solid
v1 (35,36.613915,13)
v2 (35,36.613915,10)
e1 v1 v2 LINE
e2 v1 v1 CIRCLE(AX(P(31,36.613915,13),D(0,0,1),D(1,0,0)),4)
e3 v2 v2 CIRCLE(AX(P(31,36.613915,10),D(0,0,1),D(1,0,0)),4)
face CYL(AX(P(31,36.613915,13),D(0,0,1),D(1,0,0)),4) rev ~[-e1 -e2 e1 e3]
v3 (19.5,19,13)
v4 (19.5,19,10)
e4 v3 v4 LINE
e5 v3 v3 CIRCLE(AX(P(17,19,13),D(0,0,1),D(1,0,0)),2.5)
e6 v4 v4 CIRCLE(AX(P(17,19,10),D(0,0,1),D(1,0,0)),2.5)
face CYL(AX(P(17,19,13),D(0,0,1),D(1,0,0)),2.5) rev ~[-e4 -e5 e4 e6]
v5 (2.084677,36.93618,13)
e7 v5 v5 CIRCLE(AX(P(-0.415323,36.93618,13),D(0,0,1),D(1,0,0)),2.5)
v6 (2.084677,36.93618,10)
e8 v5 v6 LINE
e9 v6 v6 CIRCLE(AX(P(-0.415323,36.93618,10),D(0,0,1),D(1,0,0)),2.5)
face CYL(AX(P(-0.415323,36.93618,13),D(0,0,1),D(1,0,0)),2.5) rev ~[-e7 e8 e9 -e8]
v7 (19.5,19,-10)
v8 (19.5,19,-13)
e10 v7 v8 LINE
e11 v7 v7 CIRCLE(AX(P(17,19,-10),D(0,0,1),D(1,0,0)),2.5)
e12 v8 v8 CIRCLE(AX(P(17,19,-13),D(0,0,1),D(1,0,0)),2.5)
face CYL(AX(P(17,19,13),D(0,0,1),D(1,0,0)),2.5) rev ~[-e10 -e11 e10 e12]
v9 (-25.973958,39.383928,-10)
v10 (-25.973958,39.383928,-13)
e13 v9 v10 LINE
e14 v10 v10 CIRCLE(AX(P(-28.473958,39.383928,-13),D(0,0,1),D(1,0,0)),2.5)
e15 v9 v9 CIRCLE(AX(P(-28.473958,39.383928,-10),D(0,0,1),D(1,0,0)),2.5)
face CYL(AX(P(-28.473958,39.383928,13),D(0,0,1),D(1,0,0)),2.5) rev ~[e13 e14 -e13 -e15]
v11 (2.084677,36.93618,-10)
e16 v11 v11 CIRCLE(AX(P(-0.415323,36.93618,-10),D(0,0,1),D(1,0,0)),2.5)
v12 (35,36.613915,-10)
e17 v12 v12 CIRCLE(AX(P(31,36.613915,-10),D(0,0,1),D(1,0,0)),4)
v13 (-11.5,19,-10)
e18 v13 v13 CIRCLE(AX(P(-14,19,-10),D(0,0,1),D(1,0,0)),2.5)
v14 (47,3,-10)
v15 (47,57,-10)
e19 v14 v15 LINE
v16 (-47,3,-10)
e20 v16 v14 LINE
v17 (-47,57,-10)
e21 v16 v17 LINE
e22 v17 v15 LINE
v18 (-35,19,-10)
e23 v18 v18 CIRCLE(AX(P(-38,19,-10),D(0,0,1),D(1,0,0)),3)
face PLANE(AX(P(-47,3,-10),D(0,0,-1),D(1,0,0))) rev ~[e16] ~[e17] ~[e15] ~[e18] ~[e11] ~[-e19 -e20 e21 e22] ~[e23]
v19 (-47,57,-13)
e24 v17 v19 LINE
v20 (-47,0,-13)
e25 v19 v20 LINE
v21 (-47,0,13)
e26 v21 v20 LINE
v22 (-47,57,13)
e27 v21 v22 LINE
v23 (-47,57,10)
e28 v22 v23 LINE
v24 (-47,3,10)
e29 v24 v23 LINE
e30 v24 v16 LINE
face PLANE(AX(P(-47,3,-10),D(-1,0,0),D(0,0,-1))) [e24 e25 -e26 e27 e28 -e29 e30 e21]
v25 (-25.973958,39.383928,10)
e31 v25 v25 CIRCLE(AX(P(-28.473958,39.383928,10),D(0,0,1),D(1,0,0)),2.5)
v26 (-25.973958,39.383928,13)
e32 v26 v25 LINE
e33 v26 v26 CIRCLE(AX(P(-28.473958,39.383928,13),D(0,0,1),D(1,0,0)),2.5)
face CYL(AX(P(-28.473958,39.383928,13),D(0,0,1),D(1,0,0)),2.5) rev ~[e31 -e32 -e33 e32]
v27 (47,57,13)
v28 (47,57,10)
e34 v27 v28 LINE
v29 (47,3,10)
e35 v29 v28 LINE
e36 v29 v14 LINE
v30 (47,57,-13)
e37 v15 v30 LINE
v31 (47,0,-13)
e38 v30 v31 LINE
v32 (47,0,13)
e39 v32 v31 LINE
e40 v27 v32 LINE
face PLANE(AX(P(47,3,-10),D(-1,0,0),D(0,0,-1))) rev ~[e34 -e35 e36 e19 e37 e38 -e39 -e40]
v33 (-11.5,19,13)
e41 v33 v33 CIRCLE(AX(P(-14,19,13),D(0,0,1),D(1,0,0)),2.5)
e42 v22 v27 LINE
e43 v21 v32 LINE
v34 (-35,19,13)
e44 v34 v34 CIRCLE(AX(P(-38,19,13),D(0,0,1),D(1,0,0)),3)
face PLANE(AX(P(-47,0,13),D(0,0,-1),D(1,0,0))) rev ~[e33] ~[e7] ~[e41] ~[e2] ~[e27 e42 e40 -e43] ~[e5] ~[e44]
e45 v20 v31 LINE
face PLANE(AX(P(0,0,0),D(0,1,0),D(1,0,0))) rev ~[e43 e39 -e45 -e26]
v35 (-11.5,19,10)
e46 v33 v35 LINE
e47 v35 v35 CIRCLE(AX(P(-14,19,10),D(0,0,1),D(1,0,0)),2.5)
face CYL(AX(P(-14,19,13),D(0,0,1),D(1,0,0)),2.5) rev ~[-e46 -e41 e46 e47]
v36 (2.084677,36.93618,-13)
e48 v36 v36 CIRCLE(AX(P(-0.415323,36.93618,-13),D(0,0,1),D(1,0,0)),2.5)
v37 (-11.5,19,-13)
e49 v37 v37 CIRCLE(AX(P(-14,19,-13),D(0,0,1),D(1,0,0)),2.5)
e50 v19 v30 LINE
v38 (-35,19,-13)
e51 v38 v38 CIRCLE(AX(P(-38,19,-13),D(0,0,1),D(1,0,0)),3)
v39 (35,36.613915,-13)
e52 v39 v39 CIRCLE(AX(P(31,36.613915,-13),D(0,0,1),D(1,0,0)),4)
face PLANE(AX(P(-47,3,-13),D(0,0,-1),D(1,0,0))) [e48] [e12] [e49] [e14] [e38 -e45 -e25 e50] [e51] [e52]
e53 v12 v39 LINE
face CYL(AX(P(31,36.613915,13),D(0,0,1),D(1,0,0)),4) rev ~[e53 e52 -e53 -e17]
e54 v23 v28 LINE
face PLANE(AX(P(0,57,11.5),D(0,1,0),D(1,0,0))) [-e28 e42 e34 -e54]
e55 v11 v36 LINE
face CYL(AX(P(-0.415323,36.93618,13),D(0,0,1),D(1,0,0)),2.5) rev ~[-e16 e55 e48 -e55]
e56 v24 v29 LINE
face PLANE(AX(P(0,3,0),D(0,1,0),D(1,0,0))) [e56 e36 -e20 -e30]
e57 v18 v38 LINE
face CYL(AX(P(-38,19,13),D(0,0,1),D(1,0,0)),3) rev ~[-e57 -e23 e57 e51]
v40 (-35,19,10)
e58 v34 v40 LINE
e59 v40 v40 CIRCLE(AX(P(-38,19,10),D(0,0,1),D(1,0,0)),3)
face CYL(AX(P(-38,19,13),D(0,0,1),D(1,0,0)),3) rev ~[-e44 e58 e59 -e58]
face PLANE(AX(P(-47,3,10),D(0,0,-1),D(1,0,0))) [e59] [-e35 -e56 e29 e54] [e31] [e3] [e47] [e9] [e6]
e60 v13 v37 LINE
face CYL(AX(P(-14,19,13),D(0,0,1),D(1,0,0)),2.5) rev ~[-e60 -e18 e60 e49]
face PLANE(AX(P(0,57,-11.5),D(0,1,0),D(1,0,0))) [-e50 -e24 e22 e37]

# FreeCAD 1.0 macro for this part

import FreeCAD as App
import Part
import Sketcher


def add_polygon(sketch, points):
    """Adds a closed chain of lines whose ends are joined by coincident constraints."""
    first, n = sketch.GeometryCount, len(points)
    for a, b in zip(points, points[1:] + points[:1]):
        sketch.addGeometry(Part.LineSegment(App.Vector(*a, 0), App.Vector(*b, 0)), False)
    for i in range(n):
        sketch.addConstraint(Sketcher.Constraint("Coincident", first + i, 2, first + (i + 1) % n, 1))

doc = App.newDocument("Part")
body = doc.addObject("PartDesign::Body", "Body")

sketch1 = body.newObject("Sketcher::SketchObject", "Sketch")
sketch1.AttachmentSupport = (doc.getObject("XZ_Plane"), [""])
sketch1.MapMode = "FlatFace"
add_polygon(sketch1, [(-47, -13), (-47, 13), (47, 13), (47, -13)])
sketch1.addConstraint([
    Sketcher.Constraint("Vertical", 0),
    Sketcher.Constraint("Horizontal", 1),
    Sketcher.Constraint("Vertical", 2),
    Sketcher.Constraint("Horizontal", 3),
    Sketcher.Constraint("Symmetric", 0, 2, 2, 2, -1, 1),
    Sketcher.Constraint("DistanceX", 1, 1, 1, 2, 94.0),
    Sketcher.Constraint("DistanceY", 0, 1, 0, 2, 26.0),
])
pad1 = body.newObject("PartDesign::Pad", "Pad")
pad1.Profile = sketch1
pad1.Length = 3
pad1.Reversed = True

sketch2 = body.newObject("Sketcher::SketchObject", "Sketch001")
sketch2.AttachmentSupport = (doc.getObject("XZ_Plane"), [""])
sketch2.MapMode = "FlatFace"
sketch2.AttachmentOffset = App.Placement(App.Vector(0, 0, -3), App.Rotation())
add_polygon(sketch2, [(-47, -13), (-47, -10), (47, -10), (47, -13)])
add_polygon(sketch2, [(-47, 10), (-47, 13), (47, 13), (47, 10)])
sketch2.addConstraint([
    Sketcher.Constraint("Vertical", 0),
    Sketcher.Constraint("Horizontal", 1),
    Sketcher.Constraint("Vertical", 2),
    Sketcher.Constraint("Horizontal", 3),
    Sketcher.Constraint("Vertical", 4),
    Sketcher.Constraint("Horizontal", 5),
    Sketcher.Constraint("Vertical", 6),
    Sketcher.Constraint("Horizontal", 7),
    Sketcher.Constraint("Symmetric", 2, 2, 4, 2, -1, 1),
    Sketcher.Constraint("Symmetric", 0, 2, 6, 2, -1, 1),
    Sketcher.Constraint("Vertical", 3, 2, 4, 2),
    Sketcher.Constraint("DistanceX", 1, 1, 1, 2, 94.0),
    Sketcher.Constraint("DistanceY", 0, 1, 0, 2, 3.0),
    Sketcher.Constraint("DistanceY", 0, 2, -1, 1, 10.0),
])
pad2 = body.newObject("PartDesign::Pad", "Pad001")
pad2.Profile = sketch2
pad2.Length = 54
pad2.Reversed = True

sketch3 = body.newObject("Sketcher::SketchObject", "Sketch002")
sketch3.AttachmentSupport = (doc.getObject("XY_Plane"), [""])
sketch3.MapMode = "FlatFace"
sketch3.AttachmentOffset = App.Placement(App.Vector(0, 0, 13), App.Rotation())
sketch3.addGeometry([
    Part.Circle(App.Vector(-38, 19, 0), App.Vector(0, 0, 1), 3),
    Part.Circle(App.Vector(17, 19, 0), App.Vector(0, 0, 1), 2.5),
    Part.Circle(App.Vector(-14, 19, 0), App.Vector(0, 0, 1), 2.5),
    Part.Circle(App.Vector(-28.5, 39.4, 0), App.Vector(0, 0, 1), 2.5),
    Part.Circle(App.Vector(-0.4, 36.9, 0), App.Vector(0, 0, 1), 2.5),
    Part.Circle(App.Vector(31, 36.6, 0), App.Vector(0, 0, 1), 4),
], False)
sketch3.addConstraint([
    Sketcher.Constraint("Equal", 1, 2),
    Sketcher.Constraint("Equal", 2, 3),
    Sketcher.Constraint("Equal", 3, 4),
    Sketcher.Constraint("Horizontal", 0, 3, 1, 3),
    Sketcher.Constraint("Horizontal", 1, 3, 2, 3),
    Sketcher.Constraint("Diameter", 0, 6.0),
    Sketcher.Constraint("Diameter", 1, 5.0),
    Sketcher.Constraint("Diameter", 5, 8.0),
    Sketcher.Constraint("DistanceX", 0, 3, -1, 1, 38.0),
    Sketcher.Constraint("DistanceY", -1, 1, 0, 3, 19.0),
    Sketcher.Constraint("DistanceX", -1, 1, 1, 3, 17.0),
    Sketcher.Constraint("DistanceX", 2, 3, -1, 1, 14.0),
    Sketcher.Constraint("DistanceX", -1, 1, 5, 3, 31.0),
    Sketcher.Constraint("DistanceX", 3, 3, -1, 1, 28.473958),
    Sketcher.Constraint("DistanceY", -1, 1, 3, 3, 39.383928),
    Sketcher.Constraint("DistanceY", -1, 1, 4, 3, 36.93618),
    Sketcher.Constraint("DistanceX", 4, 3, -1, 1, 0.415323),
    Sketcher.Constraint("DistanceY", -1, 1, 5, 3, 36.613915),
])
pocket1 = body.newObject("PartDesign::Pocket", "Pocket")
pocket1.Profile = sketch3
pocket1.Type = "ThroughAll"

doc.recompute()
